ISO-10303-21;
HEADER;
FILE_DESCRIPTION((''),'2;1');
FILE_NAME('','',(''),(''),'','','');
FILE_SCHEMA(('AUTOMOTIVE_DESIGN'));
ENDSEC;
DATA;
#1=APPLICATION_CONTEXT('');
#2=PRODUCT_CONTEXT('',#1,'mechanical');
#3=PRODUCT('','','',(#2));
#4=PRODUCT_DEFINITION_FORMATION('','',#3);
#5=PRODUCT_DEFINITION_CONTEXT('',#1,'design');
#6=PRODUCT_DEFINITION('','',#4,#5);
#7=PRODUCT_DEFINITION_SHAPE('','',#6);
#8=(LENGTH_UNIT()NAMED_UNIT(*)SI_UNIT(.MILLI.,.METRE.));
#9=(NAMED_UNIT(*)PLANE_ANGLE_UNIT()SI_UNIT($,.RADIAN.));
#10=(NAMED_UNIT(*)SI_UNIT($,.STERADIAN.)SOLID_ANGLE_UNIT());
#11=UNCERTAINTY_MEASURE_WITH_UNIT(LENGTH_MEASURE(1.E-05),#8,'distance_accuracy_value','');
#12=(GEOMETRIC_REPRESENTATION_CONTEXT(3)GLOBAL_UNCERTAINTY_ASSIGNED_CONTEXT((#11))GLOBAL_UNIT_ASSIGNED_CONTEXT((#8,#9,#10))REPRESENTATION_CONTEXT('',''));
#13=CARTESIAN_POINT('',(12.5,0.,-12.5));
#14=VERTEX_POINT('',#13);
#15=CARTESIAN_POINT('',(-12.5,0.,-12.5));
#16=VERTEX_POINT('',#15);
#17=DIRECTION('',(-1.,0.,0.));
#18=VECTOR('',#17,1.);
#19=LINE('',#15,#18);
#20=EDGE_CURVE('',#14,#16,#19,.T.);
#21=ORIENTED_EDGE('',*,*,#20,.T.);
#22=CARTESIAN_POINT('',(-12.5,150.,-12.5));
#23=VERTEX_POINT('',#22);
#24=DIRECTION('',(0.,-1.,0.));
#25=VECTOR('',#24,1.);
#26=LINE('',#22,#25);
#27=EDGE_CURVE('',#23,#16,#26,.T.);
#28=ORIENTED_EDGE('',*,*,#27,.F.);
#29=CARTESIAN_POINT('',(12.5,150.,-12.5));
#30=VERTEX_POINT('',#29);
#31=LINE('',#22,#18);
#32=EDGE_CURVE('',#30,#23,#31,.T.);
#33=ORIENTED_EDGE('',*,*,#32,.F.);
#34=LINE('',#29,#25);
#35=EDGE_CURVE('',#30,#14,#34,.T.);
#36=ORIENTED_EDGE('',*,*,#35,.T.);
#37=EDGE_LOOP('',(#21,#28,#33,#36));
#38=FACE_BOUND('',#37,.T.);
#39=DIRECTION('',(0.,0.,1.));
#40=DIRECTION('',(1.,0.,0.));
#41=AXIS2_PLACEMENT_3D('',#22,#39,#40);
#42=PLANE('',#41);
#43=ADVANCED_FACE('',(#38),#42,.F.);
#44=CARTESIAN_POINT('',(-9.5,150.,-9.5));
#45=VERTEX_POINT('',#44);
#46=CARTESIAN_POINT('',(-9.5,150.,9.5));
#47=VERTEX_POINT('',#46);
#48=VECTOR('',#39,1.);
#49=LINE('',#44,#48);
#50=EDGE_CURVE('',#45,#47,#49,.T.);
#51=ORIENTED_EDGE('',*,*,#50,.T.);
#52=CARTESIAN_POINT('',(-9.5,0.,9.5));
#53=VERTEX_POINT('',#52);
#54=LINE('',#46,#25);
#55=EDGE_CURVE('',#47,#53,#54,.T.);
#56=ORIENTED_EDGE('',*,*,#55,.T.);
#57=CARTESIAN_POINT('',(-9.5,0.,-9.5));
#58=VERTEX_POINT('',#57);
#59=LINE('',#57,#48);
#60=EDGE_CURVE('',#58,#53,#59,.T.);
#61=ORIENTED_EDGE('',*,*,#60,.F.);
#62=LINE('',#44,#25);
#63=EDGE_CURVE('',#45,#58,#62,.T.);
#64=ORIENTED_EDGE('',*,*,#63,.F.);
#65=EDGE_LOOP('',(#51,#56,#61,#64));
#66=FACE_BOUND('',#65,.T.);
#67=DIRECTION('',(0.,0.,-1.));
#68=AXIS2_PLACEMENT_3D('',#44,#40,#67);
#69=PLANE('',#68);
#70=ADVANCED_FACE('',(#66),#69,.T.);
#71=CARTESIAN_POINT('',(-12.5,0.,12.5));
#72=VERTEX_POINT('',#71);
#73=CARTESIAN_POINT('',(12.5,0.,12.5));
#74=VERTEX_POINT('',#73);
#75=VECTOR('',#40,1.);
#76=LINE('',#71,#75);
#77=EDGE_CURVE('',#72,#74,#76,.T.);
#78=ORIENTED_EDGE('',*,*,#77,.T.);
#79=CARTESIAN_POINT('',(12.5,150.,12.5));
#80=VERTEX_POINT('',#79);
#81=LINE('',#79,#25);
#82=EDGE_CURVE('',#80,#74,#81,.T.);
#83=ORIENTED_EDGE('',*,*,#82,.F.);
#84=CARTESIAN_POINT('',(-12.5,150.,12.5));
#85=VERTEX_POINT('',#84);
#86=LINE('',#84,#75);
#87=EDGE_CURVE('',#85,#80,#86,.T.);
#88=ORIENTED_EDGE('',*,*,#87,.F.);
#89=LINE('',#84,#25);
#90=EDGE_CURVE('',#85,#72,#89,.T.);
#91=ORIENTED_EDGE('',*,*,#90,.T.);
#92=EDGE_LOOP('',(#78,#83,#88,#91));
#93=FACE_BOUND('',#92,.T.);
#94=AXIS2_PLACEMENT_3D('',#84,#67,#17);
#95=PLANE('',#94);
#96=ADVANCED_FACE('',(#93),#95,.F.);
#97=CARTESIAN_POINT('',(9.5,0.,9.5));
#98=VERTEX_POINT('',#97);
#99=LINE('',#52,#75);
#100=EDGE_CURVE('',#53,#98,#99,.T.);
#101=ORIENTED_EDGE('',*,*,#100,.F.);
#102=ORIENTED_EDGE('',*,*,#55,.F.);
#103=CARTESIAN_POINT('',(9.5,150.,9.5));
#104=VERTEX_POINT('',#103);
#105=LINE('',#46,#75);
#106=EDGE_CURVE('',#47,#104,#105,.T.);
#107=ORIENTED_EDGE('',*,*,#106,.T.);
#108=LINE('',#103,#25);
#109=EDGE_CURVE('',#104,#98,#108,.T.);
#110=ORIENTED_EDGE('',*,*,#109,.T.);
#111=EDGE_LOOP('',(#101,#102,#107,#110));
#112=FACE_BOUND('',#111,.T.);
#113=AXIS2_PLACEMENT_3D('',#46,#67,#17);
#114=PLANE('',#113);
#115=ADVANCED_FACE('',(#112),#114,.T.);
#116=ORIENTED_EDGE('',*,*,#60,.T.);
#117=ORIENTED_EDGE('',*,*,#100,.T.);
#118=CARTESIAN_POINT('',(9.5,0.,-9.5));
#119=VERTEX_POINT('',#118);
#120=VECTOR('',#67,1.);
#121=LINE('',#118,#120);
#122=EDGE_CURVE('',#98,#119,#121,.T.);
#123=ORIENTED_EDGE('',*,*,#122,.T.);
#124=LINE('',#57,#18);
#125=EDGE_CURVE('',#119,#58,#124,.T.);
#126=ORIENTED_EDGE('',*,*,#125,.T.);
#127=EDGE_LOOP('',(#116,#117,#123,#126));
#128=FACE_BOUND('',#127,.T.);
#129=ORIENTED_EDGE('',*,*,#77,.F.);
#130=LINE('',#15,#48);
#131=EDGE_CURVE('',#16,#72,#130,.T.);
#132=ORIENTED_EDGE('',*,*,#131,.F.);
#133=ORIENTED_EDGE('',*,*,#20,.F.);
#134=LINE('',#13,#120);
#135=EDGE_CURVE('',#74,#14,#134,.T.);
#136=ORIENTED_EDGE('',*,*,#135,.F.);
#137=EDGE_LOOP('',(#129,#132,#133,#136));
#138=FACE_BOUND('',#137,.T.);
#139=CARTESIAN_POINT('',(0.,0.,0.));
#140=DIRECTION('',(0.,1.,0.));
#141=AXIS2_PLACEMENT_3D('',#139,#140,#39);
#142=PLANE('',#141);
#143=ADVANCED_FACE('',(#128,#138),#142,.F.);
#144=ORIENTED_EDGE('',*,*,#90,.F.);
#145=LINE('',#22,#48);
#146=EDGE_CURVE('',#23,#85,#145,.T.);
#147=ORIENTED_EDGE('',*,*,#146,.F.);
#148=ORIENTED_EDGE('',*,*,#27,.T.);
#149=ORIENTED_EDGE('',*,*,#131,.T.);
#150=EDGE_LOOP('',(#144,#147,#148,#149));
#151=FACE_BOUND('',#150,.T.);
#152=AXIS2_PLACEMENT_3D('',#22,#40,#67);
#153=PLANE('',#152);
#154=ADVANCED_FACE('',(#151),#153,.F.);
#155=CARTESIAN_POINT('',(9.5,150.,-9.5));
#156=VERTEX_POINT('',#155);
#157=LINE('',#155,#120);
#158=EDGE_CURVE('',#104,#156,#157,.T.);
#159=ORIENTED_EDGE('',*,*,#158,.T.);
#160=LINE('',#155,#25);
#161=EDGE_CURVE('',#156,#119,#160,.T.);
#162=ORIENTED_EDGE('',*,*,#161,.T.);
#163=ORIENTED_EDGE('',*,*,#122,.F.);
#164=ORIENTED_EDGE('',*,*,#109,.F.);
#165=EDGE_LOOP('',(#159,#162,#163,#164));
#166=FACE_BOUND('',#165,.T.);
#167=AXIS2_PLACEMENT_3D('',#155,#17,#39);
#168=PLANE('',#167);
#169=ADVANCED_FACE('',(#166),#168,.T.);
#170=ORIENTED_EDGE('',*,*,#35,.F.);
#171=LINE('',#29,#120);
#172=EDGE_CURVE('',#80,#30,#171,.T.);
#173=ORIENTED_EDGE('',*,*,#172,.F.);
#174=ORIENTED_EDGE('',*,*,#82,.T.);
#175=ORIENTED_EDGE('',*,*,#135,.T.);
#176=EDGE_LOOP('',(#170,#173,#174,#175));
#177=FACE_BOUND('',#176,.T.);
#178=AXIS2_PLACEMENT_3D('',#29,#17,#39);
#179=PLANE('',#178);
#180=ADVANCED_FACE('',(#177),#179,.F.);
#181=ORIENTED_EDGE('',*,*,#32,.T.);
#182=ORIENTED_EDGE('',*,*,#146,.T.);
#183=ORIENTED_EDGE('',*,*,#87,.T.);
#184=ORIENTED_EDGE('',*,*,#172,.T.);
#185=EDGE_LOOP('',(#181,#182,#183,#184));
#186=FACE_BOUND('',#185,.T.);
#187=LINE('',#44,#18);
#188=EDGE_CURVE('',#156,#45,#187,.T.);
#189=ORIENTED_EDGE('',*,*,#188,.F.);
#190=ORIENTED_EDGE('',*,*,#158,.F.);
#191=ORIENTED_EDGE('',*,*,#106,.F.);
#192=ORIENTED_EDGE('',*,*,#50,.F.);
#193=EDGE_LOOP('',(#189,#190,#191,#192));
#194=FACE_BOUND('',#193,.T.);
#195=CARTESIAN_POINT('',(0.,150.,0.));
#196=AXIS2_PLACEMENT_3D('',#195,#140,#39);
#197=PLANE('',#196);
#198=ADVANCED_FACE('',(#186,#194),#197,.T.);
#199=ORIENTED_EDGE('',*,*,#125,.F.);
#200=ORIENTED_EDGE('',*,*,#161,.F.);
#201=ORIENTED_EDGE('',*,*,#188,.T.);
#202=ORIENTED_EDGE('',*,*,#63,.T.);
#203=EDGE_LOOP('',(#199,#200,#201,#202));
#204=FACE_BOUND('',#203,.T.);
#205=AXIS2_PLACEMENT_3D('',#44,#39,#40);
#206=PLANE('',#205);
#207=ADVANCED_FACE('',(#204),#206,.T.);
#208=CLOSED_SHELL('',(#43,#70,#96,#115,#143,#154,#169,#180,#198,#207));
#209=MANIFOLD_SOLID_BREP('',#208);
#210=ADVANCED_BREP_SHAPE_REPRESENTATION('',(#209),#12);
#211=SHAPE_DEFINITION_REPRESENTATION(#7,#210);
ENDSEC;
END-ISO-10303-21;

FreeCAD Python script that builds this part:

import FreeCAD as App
import Part
import Sketcher
from FreeCAD import Vector


def add_polygon(sketch, points):
    """Adds a closed chain of lines whose ends are joined by coincident constraints."""
    first, n = sketch.GeometryCount, len(points)
    for a, b in zip(points, points[1:] + points[:1]):
        sketch.addGeometry(Part.LineSegment(App.Vector(*a, 0), App.Vector(*b, 0)), False)
    for i in range(n):
        sketch.addConstraint(Sketcher.Constraint("Coincident", first + i, 2, first + (i + 1) % n, 1))

doc = App.newDocument("Part")
body = doc.addObject("PartDesign::Body", "Body")

# Sketch on XZ plane
sketch1 = doc.addObject("Sketcher::SketchObject", "Sketch")
body.addObject(sketch1)
sketch1.AttachmentSupport = (doc.XZ_Plane, [""])
sketch1.MapMode = "FlatFace"
add_polygon(sketch1, [(-12.5, -12.5), (-12.5, 12.5), (12.5, 12.5), (12.5, -12.5)])  # lines 0-3
add_polygon(sketch1, [(9.5, 9.5), (-9.5, 9.5), (-9.5, -9.5), (9.5, -9.5)])  # lines 4-7
sketch1.addConstraint([
    Sketcher.Constraint("Vertical", 0),
    Sketcher.Constraint("Horizontal", 1),
    Sketcher.Constraint("Vertical", 2),
    Sketcher.Constraint("Horizontal", 3),
    Sketcher.Constraint("Horizontal", 4),
    Sketcher.Constraint("Vertical", 5),
    Sketcher.Constraint("Horizontal", 6),
    Sketcher.Constraint("Vertical", 7),
    Sketcher.Constraint("Symmetric", 0, 2, 2, 2, -1, 1),
    Sketcher.Constraint("Symmetric", 4, 2, 6, 2, -1, 1),
    Sketcher.Constraint("Equal", 3, 0),
    Sketcher.Constraint("Equal", 6, 5),
    Sketcher.Constraint("DistanceX", 1, 1, 1, 2, 25.0),
    Sketcher.Constraint("DistanceX", 4, 2, 4, 1, 19.0),
])
pad1 = doc.addObject("PartDesign::Pad", "Pad")
body.addObject(pad1)
pad1.Profile = sketch1
pad1.Length = 150
pad1.Reversed = True

doc.recompute()
